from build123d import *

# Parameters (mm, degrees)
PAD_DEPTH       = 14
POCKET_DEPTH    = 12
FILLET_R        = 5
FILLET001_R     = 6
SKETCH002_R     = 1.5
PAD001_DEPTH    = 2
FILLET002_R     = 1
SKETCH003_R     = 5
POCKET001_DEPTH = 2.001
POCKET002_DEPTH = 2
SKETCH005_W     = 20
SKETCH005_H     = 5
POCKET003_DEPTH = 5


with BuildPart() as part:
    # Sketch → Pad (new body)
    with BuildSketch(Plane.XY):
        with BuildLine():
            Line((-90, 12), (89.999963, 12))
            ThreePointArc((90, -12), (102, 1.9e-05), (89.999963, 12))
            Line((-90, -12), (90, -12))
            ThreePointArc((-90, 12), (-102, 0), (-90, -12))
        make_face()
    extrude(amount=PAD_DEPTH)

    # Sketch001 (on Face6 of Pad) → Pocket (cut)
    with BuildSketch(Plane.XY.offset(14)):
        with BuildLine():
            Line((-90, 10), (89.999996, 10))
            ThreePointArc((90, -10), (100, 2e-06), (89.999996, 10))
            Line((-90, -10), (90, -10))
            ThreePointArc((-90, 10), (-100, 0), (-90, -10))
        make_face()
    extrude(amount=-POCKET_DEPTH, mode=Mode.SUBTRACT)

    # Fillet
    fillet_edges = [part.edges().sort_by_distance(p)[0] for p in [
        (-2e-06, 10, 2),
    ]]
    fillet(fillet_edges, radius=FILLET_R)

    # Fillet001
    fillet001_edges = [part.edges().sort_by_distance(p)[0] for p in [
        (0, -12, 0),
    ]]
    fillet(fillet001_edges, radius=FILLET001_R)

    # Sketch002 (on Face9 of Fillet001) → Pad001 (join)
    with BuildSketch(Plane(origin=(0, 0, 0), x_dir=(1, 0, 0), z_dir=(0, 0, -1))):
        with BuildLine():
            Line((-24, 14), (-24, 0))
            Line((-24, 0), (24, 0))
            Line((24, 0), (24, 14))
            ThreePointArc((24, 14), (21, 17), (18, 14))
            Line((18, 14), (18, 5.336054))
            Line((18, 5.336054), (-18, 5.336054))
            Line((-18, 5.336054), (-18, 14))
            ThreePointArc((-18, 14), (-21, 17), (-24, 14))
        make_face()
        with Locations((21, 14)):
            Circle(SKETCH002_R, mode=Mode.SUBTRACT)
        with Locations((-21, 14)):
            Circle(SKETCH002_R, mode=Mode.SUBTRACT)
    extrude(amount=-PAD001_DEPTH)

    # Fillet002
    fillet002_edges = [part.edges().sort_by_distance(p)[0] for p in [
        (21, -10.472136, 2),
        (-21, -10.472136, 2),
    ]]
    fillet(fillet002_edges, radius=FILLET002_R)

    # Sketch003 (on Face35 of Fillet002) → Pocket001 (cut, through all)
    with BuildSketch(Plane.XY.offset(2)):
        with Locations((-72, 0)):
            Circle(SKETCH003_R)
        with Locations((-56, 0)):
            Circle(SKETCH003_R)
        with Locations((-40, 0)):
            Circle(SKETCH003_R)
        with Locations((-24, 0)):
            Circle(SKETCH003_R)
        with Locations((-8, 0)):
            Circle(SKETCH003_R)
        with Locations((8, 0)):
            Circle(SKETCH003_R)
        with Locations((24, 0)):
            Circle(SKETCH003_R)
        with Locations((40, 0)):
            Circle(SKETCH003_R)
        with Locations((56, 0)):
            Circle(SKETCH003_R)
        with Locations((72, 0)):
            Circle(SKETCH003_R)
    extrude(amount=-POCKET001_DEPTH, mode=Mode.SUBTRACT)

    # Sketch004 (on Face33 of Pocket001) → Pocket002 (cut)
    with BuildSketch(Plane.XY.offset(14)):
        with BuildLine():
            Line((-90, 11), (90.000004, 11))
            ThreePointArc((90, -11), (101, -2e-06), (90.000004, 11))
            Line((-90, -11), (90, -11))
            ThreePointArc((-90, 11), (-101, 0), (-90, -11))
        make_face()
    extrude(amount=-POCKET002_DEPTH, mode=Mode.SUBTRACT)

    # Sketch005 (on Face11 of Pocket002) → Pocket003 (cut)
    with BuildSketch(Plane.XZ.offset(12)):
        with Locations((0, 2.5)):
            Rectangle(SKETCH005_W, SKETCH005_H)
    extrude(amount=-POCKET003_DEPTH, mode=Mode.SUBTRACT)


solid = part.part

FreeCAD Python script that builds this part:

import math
import FreeCAD as App
import Part
import Sketcher


def edges_at(feature, points):
    """Names of the edges that pass closest to the given points."""
    edges = feature.Shape.Edges
    near = lambda p: min(range(len(edges)), key=lambda i: edges[i].distToShape(Part.Vertex(*p))[0])
    return sorted({f"Edge{near(p) + 1}" for p in points})


def add_polygon(sketch, points):
    """Adds a closed chain of lines whose ends are joined by coincident constraints."""
    first, n = sketch.GeometryCount, len(points)
    for a, b in zip(points, points[1:] + points[:1]):
        sketch.addGeometry(Part.LineSegment(App.Vector(*a, 0), App.Vector(*b, 0)), False)
    for i in range(n):
        sketch.addConstraint(Sketcher.Constraint("Coincident", first + i, 2, first + (i + 1) % n, 1))

doc = App.newDocument("Part")
body = doc.addObject("PartDesign::Body", "Body")

# Sketch on XY plane
sketch1 = body.newObject("Sketcher::SketchObject", "Sketch")
sketch1.AttachmentSupport = (doc.getObject("XY_Plane"), [""])
sketch1.MapMode = "FlatFace"
sketch1.addGeometry([
    Part.LineSegment(App.Vector(89.999963, 12, 0), App.Vector(-90, 12, 0)),
    Part.ArcOfCircle(Part.Circle(App.Vector(-90, 0, 0), App.Vector(0, 0, 1), 12), math.radians(90), math.radians(270)),
    Part.LineSegment(App.Vector(-90, -12, 0), App.Vector(90, -12, 0)),
    Part.ArcOfCircle(Part.Circle(App.Vector(90, 0, 0), App.Vector(0, 0, 1), 12), math.radians(-90), math.radians(90.000177)),
], False)
sketch1.addConstraint([
    Sketcher.Constraint("Tangent", 0, 2, 1, 1),
    Sketcher.Constraint("Tangent", 1, 2, 2, 1),
    Sketcher.Constraint("Tangent", 2, 2, 3, 1),
    Sketcher.Constraint("Coincident", 3, 2, 0, 1),
    Sketcher.Constraint("Horizontal", 0),
    Sketcher.Constraint("Horizontal", 2),
    Sketcher.Constraint("Symmetric", 1, 3, 3, 3, -1, 1),
    Sketcher.Constraint("Radius", 1, 12.0),
    Sketcher.Constraint("DistanceX", 2, 1, 2, 2, 180.0),
    Sketcher.Constraint("DistanceX", 0, 2, 0, 1, 179.999963),
])
pad1 = body.newObject("PartDesign::Pad", "Pad")
pad1.Profile = sketch1
pad1.Length = 14

# Sketch on XY plane
sketch2 = body.newObject("Sketcher::SketchObject", "Sketch001")
sketch2.AttachmentSupport = (doc.getObject("XY_Plane"), [""])
sketch2.MapMode = "FlatFace"
sketch2.AttachmentOffset = App.Placement(App.Vector(0, 0, 14), App.Rotation())
sketch2.addGeometry([
    Part.LineSegment(App.Vector(89.999996, 10, 0), App.Vector(-90, 10, 0)),
    Part.ArcOfCircle(Part.Circle(App.Vector(-90, 0, 0), App.Vector(0, 0, 1), 10), math.radians(90), math.radians(270)),
    Part.LineSegment(App.Vector(-90, -10, 0), App.Vector(90, -10, 0)),
    Part.ArcOfCircle(Part.Circle(App.Vector(90, 0, 0), App.Vector(0, 0, 1), 10), math.radians(-90), math.radians(90.000023)),
], False)
sketch2.addConstraint([
    Sketcher.Constraint("Tangent", 0, 2, 1, 1),
    Sketcher.Constraint("Tangent", 1, 2, 2, 1),
    Sketcher.Constraint("Tangent", 2, 2, 3, 1),
    Sketcher.Constraint("Tangent", 3, 2, 0, 1),
    Sketcher.Constraint("Horizontal", 0),
    Sketcher.Constraint("Horizontal", 2),
    Sketcher.Constraint("Symmetric", 1, 3, 3, 3, -1, 1),
    Sketcher.Constraint("Radius", 1, 10.0),
    Sketcher.Constraint("DistanceX", 2, 1, 2, 2, 180.0),
])
pocket1 = body.newObject("PartDesign::Pocket", "Pocket")
pocket1.Profile = sketch2
pocket1.Length = 12
doc.recompute()

fillet = body.newObject("PartDesign::Fillet", "Fillet")
fillet.Base = (pocket1, edges_at(pocket1, [(0, 10, 2)]))
fillet.Radius = 5
doc.recompute()

fillet2 = body.newObject("PartDesign::Fillet", "Fillet001")
fillet2.Base = (fillet, edges_at(fillet, [(0, -12, 0)]))
fillet2.Radius = 6

# Sketch on XY plane
sketch3 = body.newObject("Sketcher::SketchObject", "Sketch002")
sketch3.AttachmentSupport = (doc.getObject("XY_Plane"), [""])
sketch3.MapMode = "FlatFace"
sketch3.addGeometry([
    Part.LineSegment(App.Vector(-24, -14, 0), App.Vector(-24, 0, 0)),  # 0
    Part.LineSegment(App.Vector(-24, 0, 0), App.Vector(24, 0, 0)),  # 1
    Part.LineSegment(App.Vector(24, 0, 0), App.Vector(24, -14, 0)),  # 2
    Part.ArcOfCircle(Part.Circle(App.Vector(21, -14, 0), App.Vector(0, 0, 1), 3), math.radians(180), math.radians(360)),  # 3
    Part.LineSegment(App.Vector(18, -14, 0), App.Vector(18, -5.336054, 0)),  # 4
    Part.LineSegment(App.Vector(18, -5.336054, 0), App.Vector(-18, -5.336054, 0)),  # 5
    Part.LineSegment(App.Vector(-18, -5.336054, 0), App.Vector(-18, -14, 0)),  # 6
    Part.ArcOfCircle(Part.Circle(App.Vector(-21, -14, 0), App.Vector(0, 0, 1), 3), math.radians(180), math.radians(360)),  # 7
    Part.Circle(App.Vector(-21, -14, 0), App.Vector(0, 0, 1), 1.5),  # 8
    Part.Circle(App.Vector(21, -14, 0), App.Vector(0, 0, 1), 1.5),  # 9
], False)
sketch3.addConstraint([
    Sketcher.Constraint("Coincident", 0, 2, 1, 1),
    Sketcher.Constraint("Coincident", 1, 2, 2, 1),
    Sketcher.Constraint("Tangent", 2, 2, 3, 2),
    Sketcher.Constraint("Tangent", 3, 1, 4, 1),
    Sketcher.Constraint("Coincident", 4, 2, 5, 1),
    Sketcher.Constraint("Coincident", 5, 2, 6, 1),
    Sketcher.Constraint("Tangent", 6, 2, 7, 2),
    Sketcher.Constraint("Tangent", 7, 1, 0, 1),
    Sketcher.Constraint("Vertical", 0),
    Sketcher.Constraint("Horizontal", 1),
    Sketcher.Constraint("Vertical", 2),
    Sketcher.Constraint("Vertical", 4),
    Sketcher.Constraint("Horizontal", 5),
    Sketcher.Constraint("Vertical", 6),
    Sketcher.Constraint("Coincident", 8, 3, 7, 3),
    Sketcher.Constraint("Coincident", 9, 3, 3, 3),
    Sketcher.Constraint("Equal", 3, 7),
    Sketcher.Constraint("Equal", 8, 9),
    Sketcher.Constraint("Symmetric", 0, 2, 1, 2, -1, 1),
    Sketcher.Constraint("Horizontal", 3, 3, 7, 3),
    Sketcher.Constraint("Diameter", 8, 3.0),
    Sketcher.Constraint("Radius", 3, 3.0),
    Sketcher.Constraint("DistanceX", 1, 1, 1, 2, 48.0),
    Sketcher.Constraint("DistanceY", 0, 1, 0, 2, 14.0),
    Sketcher.Constraint("DistanceY", 4, 1, 4, 2, 8.663946),
])
pad2 = body.newObject("PartDesign::Pad", "Pad001")
pad2.Profile = sketch3
pad2.Length = 2
doc.recompute()

fillet3 = body.newObject("PartDesign::Fillet", "Fillet002")
fillet3.Base = (pad2, edges_at(pad2, [(21, -10.472, 2), (-21, -10.472, 2)]))
fillet3.Radius = 1

# Sketch on XY plane
sketch4 = body.newObject("Sketcher::SketchObject", "Sketch003")
sketch4.AttachmentSupport = (doc.getObject("XY_Plane"), [""])
sketch4.MapMode = "FlatFace"
sketch4.AttachmentOffset = App.Placement(App.Vector(0, 0, 2), App.Rotation())
sketch4.addGeometry([
    Part.Circle(App.Vector(-72, 0, 0), App.Vector(0, 0, 1), 5),  # 0
    Part.Circle(App.Vector(-56, 0, 0), App.Vector(0, 0, 1), 5),  # 1
    Part.Circle(App.Vector(-40, 0, 0), App.Vector(0, 0, 1), 5),  # 2
    Part.Circle(App.Vector(-24, 0, 0), App.Vector(0, 0, 1), 5),  # 3
    Part.Circle(App.Vector(-8, 0, 0), App.Vector(0, 0, 1), 5),  # 4
    Part.Circle(App.Vector(8, 0, 0), App.Vector(0, 0, 1), 5),  # 5
    Part.Circle(App.Vector(24, 0, 0), App.Vector(0, 0, 1), 5),  # 6
    Part.Circle(App.Vector(40, 0, 0), App.Vector(0, 0, 1), 5),  # 7
    Part.Circle(App.Vector(56, 0, 0), App.Vector(0, 0, 1), 5),  # 8
    Part.Circle(App.Vector(72, 0, 0), App.Vector(0, 0, 1), 5),  # 9
], False)
sketch4.addConstraint([
    Sketcher.Constraint("Equal", 0, 1),
    Sketcher.Constraint("Equal", 1, 2),
    Sketcher.Constraint("Equal", 2, 3),
    Sketcher.Constraint("Equal", 3, 4),
    Sketcher.Constraint("Equal", 4, 5),
    Sketcher.Constraint("Equal", 5, 6),
    Sketcher.Constraint("Equal", 6, 7),
    Sketcher.Constraint("Equal", 7, 8),
    Sketcher.Constraint("Equal", 8, 9),
    Sketcher.Constraint("Symmetric", 4, 3, 5, 3, -1, 1),
    Sketcher.Constraint("Symmetric", 3, 3, 6, 3, -1, 1),
    Sketcher.Constraint("Symmetric", 2, 3, 7, 3, -1, 1),
    Sketcher.Constraint("Symmetric", 1, 3, 8, 3, -1, 1),
    Sketcher.Constraint("Symmetric", 0, 3, 9, 3, -1, 1),
    Sketcher.Constraint("PointOnObject", 0, 3, -1),
    Sketcher.Constraint("PointOnObject", 1, 3, -1),
    Sketcher.Constraint("PointOnObject", 2, 3, -1),
    Sketcher.Constraint("PointOnObject", 3, 3, -1),
    Sketcher.Constraint("PointOnObject", 4, 3, -1),
    Sketcher.Constraint("Diameter", 0, 10.0),
    Sketcher.Constraint("DistanceX", 0, 3, -1, 1, 72.0),
    Sketcher.Constraint("DistanceX", 1, 3, -1, 1, 56.0),
    Sketcher.Constraint("DistanceX", 2, 3, -1, 1, 40.0),
    Sketcher.Constraint("DistanceX", 3, 3, -1, 1, 24.0),
    Sketcher.Constraint("DistanceX", 4, 3, -1, 1, 8.0),
])
pocket2 = body.newObject("PartDesign::Pocket", "Pocket001")
pocket2.Profile = sketch4
pocket2.Type = "ThroughAll"

# Sketch on XY plane
sketch5 = body.newObject("Sketcher::SketchObject", "Sketch004")
sketch5.AttachmentSupport = (doc.getObject("XY_Plane"), [""])
sketch5.MapMode = "FlatFace"
sketch5.AttachmentOffset = App.Placement(App.Vector(0, 0, 14), App.Rotation())
sketch5.addGeometry([
    Part.LineSegment(App.Vector(90.000004, 11, 0), App.Vector(-90, 11, 0)),
    Part.ArcOfCircle(Part.Circle(App.Vector(-90, 0, 0), App.Vector(0, 0, 1), 11), math.radians(90), math.radians(270)),
    Part.LineSegment(App.Vector(-90, -11, 0), App.Vector(90, -11, 0)),
    Part.ArcOfCircle(Part.Circle(App.Vector(90, 0, 0), App.Vector(0, 0, 1), 11), math.radians(-90), math.radians(89.999979)),
], False)
sketch5.addConstraint([
    Sketcher.Constraint("Tangent", 0, 2, 1, 1),
    Sketcher.Constraint("Tangent", 1, 2, 2, 1),
    Sketcher.Constraint("Tangent", 2, 2, 3, 1),
    Sketcher.Constraint("Tangent", 3, 2, 0, 1),
    Sketcher.Constraint("Horizontal", 0),
    Sketcher.Constraint("Horizontal", 2),
    Sketcher.Constraint("Symmetric", 1, 3, 3, 3, -1, 1),
    Sketcher.Constraint("Radius", 1, 11.0),
    Sketcher.Constraint("DistanceX", 2, 1, 2, 2, 180.0),
])
pocket3 = body.newObject("PartDesign::Pocket", "Pocket002")
pocket3.Profile = sketch5
pocket3.Length = 2

# Sketch on XZ plane
sketch6 = body.newObject("Sketcher::SketchObject", "Sketch005")
sketch6.AttachmentSupport = (doc.getObject("XZ_Plane"), [""])
sketch6.MapMode = "FlatFace"
sketch6.AttachmentOffset = App.Placement(App.Vector(0, 0, 12), App.Rotation())
add_polygon(sketch6, [(-10, 5), (-10, 0), (10, 0), (10, 5)])  # lines 0-3
sketch6.addConstraint([
    Sketcher.Constraint("Vertical", 0),
    Sketcher.Constraint("Horizontal", 1),
    Sketcher.Constraint("Vertical", 2),
    Sketcher.Constraint("Horizontal", 3),
    Sketcher.Constraint("Symmetric", 0, 2, 1, 2, -1, 1),
    Sketcher.Constraint("DistanceX", 1, 1, 1, 2, 20.0),
    Sketcher.Constraint("DistanceY", 0, 2, 0, 1, 5.0),
])
pocket4 = body.newObject("PartDesign::Pocket", "Pocket003")
pocket4.Profile = sketch6
pocket4.Length = 5

doc.recompute()
